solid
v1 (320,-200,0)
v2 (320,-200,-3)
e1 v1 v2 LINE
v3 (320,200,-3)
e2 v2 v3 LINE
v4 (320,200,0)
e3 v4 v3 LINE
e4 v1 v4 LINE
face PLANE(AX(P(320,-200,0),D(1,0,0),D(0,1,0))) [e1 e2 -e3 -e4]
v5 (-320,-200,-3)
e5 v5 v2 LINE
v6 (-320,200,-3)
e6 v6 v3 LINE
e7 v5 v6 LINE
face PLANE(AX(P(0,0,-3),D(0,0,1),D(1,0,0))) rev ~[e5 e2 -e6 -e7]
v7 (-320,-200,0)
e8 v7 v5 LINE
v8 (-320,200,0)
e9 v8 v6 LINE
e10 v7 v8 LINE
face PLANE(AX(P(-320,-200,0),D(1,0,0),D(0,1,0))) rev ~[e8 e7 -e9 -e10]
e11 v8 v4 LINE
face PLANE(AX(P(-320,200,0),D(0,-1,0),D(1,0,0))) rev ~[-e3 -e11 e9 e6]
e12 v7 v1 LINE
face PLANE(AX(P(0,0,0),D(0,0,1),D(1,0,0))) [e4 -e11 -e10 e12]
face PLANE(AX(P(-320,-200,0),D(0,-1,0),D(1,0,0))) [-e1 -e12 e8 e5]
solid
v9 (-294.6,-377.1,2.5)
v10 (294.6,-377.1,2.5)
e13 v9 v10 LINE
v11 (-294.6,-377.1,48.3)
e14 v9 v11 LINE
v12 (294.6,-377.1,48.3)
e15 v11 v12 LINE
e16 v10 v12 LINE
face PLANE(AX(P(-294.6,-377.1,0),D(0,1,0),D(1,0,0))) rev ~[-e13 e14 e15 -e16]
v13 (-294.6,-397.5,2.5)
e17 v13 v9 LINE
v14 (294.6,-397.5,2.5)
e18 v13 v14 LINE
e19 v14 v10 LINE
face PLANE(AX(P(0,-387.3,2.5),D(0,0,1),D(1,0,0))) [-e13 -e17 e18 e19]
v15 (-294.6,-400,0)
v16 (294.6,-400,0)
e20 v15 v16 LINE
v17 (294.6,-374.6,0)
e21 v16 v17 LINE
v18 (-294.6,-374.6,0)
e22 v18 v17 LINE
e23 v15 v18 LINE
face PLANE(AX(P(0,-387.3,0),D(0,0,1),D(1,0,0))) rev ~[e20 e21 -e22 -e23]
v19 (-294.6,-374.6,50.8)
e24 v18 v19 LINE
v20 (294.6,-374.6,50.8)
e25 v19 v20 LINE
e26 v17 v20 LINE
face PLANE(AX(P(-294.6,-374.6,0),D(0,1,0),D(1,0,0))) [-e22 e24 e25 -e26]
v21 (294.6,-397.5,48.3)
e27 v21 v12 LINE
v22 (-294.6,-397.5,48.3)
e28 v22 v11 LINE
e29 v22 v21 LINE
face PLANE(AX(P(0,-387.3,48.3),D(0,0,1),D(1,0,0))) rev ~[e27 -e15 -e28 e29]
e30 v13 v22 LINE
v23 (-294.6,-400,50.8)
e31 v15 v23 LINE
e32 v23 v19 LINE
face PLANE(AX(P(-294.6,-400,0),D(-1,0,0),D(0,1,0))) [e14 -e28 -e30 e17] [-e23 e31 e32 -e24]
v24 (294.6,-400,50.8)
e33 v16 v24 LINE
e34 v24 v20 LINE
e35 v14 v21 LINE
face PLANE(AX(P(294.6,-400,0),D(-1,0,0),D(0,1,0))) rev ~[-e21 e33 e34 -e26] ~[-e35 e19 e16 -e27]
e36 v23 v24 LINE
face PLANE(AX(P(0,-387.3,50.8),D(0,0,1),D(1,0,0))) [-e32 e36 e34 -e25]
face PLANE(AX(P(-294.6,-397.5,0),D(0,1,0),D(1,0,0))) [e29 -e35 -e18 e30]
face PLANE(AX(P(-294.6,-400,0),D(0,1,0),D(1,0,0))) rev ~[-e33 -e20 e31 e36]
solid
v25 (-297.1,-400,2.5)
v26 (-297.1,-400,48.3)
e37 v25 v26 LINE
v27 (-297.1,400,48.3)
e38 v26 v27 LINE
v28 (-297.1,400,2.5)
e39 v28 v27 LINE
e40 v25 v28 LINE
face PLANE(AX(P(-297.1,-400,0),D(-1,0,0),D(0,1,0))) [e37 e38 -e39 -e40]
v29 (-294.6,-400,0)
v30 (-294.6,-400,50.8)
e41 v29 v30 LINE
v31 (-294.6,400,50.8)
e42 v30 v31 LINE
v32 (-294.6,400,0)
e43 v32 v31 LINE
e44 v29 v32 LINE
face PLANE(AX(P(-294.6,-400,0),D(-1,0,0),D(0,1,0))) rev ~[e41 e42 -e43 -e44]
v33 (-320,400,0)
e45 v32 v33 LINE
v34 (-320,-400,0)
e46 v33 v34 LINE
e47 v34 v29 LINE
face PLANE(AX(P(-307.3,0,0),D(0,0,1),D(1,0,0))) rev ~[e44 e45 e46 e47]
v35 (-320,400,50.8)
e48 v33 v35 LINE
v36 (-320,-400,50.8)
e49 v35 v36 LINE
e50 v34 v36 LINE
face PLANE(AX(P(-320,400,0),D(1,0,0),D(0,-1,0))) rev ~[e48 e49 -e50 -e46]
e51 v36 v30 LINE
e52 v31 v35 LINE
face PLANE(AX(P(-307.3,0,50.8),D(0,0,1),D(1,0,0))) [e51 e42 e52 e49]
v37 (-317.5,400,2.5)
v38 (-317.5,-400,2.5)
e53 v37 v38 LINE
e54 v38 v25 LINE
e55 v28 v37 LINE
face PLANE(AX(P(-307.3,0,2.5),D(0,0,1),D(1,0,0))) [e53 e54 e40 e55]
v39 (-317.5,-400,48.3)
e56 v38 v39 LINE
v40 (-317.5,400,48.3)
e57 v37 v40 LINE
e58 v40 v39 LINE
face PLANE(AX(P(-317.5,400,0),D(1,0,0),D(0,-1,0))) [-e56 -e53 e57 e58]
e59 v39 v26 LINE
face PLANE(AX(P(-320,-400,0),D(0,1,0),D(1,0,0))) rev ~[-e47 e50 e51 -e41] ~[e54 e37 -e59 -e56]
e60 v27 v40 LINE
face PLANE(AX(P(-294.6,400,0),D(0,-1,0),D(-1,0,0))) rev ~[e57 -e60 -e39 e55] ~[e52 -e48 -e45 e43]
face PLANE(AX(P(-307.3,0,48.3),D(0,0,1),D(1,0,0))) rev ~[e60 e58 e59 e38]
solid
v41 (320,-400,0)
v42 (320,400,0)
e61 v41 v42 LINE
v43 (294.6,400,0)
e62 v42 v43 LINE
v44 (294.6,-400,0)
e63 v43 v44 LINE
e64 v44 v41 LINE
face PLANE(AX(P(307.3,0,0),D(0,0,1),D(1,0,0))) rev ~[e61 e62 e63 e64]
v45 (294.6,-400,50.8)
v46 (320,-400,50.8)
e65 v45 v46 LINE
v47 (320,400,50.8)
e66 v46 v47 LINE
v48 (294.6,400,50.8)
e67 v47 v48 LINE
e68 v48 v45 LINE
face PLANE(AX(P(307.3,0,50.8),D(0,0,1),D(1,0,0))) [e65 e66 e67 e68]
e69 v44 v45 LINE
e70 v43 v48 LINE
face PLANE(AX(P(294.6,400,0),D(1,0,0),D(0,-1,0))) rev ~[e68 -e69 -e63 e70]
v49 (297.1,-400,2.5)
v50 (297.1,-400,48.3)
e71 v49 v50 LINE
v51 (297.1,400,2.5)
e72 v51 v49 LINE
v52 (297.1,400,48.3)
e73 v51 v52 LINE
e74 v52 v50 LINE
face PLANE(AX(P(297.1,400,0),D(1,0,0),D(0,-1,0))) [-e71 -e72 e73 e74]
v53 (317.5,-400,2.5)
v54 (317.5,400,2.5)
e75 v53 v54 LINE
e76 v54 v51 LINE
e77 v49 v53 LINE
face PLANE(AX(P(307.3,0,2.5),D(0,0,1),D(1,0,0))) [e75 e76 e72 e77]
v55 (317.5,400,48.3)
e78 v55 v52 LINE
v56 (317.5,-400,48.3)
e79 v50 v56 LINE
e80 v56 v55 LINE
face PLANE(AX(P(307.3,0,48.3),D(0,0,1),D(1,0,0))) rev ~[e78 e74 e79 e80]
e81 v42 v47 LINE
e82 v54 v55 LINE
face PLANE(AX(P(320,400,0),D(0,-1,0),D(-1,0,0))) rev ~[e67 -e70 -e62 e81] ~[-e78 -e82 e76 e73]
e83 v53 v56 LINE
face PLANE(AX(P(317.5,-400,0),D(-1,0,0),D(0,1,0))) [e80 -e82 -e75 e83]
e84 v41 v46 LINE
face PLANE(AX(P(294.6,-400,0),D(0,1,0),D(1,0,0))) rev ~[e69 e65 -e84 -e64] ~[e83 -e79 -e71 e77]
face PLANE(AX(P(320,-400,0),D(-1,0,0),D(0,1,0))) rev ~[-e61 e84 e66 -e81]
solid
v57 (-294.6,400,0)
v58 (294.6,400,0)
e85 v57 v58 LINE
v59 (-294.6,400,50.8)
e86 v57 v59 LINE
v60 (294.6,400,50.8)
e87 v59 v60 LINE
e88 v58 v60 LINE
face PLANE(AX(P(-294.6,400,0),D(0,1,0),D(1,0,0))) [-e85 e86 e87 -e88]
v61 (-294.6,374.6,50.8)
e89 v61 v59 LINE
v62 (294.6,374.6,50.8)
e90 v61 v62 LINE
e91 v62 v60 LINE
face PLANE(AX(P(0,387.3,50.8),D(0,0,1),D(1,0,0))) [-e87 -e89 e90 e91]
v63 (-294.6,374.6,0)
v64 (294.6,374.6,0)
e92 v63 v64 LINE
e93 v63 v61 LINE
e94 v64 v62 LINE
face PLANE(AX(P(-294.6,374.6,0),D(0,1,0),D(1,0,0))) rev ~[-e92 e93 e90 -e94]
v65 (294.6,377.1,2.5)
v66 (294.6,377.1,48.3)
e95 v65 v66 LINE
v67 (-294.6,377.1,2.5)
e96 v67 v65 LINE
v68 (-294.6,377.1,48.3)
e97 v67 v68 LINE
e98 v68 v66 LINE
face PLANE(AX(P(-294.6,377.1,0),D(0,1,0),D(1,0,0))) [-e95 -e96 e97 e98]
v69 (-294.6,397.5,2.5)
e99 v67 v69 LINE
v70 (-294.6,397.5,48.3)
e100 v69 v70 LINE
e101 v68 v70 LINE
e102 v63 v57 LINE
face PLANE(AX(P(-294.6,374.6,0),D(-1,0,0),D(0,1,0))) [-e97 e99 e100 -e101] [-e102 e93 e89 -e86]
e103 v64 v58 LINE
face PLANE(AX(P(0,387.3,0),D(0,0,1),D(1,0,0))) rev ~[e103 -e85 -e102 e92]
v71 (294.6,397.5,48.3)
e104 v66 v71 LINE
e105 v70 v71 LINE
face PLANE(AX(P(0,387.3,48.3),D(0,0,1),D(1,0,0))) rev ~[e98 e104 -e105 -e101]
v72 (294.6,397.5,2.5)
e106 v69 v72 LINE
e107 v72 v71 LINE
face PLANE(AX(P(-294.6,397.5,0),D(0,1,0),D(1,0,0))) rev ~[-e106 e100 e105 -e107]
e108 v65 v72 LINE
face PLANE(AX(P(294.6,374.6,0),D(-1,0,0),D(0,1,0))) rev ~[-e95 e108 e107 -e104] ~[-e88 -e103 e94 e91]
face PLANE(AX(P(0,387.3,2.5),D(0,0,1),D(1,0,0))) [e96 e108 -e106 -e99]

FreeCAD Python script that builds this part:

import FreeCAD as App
import Part
import Sketcher
from FreeCAD import Vector
Q = App.Units.Quantity


def faces_at(feature, points):
    """Names of the faces that lie closest to the given points."""
    faces = feature.Shape.Faces
    near = lambda p: min(range(len(faces)), key=lambda i: faces[i].distToShape(Part.Vertex(*p))[0])
    return sorted({f"Face{near(p) + 1}" for p in points})


def add_polygon(sketch, points):
    """Adds a closed chain of lines whose ends are joined by coincident constraints."""
    first, n = sketch.GeometryCount, len(points)
    for a, b in zip(points, points[1:] + points[:1]):
        sketch.addGeometry(Part.LineSegment(App.Vector(*a, 0), App.Vector(*b, 0)), False)
    for i in range(n):
        sketch.addConstraint(Sketcher.Constraint("Coincident", first + i, 2, first + (i + 1) % n, 1))

doc = App.newDocument("Part")
body = doc.addObject("PartDesign::Body", "Body")

# Sketch on XY plane
sketch1 = doc.addObject("Sketcher::SketchObject", "Sketch")
body.addObject(sketch1)
sketch1.AttachmentSupport = (doc.XY_Plane, [""])
sketch1.MapMode = "FlatFace"
add_polygon(sketch1, [(-295, 400), (-320, 400), (-320, -400), (-295, -400)])  # lines 0-3
sketch1.addConstraint([
    Sketcher.Constraint("Horizontal", 0),
    Sketcher.Constraint("Vertical", 1),
    Sketcher.Constraint("Horizontal", 2),
    Sketcher.Constraint("Vertical", 3),
    Sketcher.Constraint("DistanceY", 1, 2, 1, 1, Q("800 mm")),
    Sketcher.Constraint("DistanceX", 0, 2, 0, 1, Q("25.4 mm")),
    Sketcher.Constraint("DistanceX", 0, 2, -1, 1, Q("320 mm")),
    Sketcher.Constraint("DistanceY", -1, 1, 0, 2, Q("400 mm")),
])
pad1 = doc.addObject("PartDesign::Pad", "Pad")
body.addObject(pad1)
pad1.Profile = sketch1
pad1.Length = 50.8
doc.recompute()

thickness = doc.addObject("PartDesign::Thickness", "Thickness")
body.addObject(thickness)
thickness.Base = (pad1, faces_at(pad1, [(-307.3, -400, 25.4), (-307.3, 400, 25.4)]))
thickness.Value = 2.5
thickness.Reversed = True
thickness.Join = "Arc"
body2 = doc.addObject("PartDesign::Body", "Body001")

# Sketch on XY plane
sketch2 = doc.addObject("Sketcher::SketchObject", "Sketch001")
body2.addObject(sketch2)
sketch2.AttachmentSupport = (doc.getObject("XY_Plane001"), [""])
sketch2.MapMode = "FlatFace"
add_polygon(sketch2, [(-295, 400), (-295, 375), (295, 375), (295, 400)])  # lines 0-3
sketch2.addConstraint([
    Sketcher.Constraint("Vertical", 0),
    Sketcher.Constraint("Horizontal", 1),
    Sketcher.Constraint("Vertical", 2),
    Sketcher.Constraint("Horizontal", 3),
    Sketcher.Constraint("DistanceX", 1, 1, 1, 2, Q("589.2 mm")),
    Sketcher.Constraint("DistanceY", 0, 2, 0, 1, Q("25.4 mm")),
    Sketcher.Constraint("DistanceY", -1, 1, 2, 2, Q("400 mm")),
    Sketcher.Constraint("DistanceX", 0, 2, -1, 1, Q("294.6 mm")),
])
pad2 = doc.addObject("PartDesign::Pad", "Pad001")
body2.addObject(pad2)
pad2.Profile = sketch2
pad2.Length = 50.8
doc.recompute()

thickness2 = doc.addObject("PartDesign::Thickness", "Thickness001")
body2.addObject(thickness2)
thickness2.Base = (pad2, faces_at(pad2, [(294.6, 387.3, 25.4), (-294.6, 387.3, 25.4)]))
thickness2.Value = 2.5
thickness2.Reversed = True
thickness2.Join = "Arc"
body3 = doc.addObject("PartDesign::Body", "Body002")

# Sketch on XY plane
sketch3 = doc.addObject("Sketcher::SketchObject", "Sketch002")
body3.addObject(sketch3)
sketch3.AttachmentSupport = (doc.getObject("XY_Plane002"), [""])
sketch3.MapMode = "FlatFace"
add_polygon(sketch3, [(320, 400), (295, 400), (295, -400), (320, -400)])  # lines 0-3
sketch3.addConstraint([
    Sketcher.Constraint("Horizontal", 0),
    Sketcher.Constraint("Vertical", 1),
    Sketcher.Constraint("Horizontal", 2),
    Sketcher.Constraint("Vertical", 3),
    Sketcher.Constraint("DistanceY", 1, 2, 1, 1, Q("800 mm")),
    Sketcher.Constraint("DistanceX", 0, 2, 0, 1, Q("25.4 mm")),
    Sketcher.Constraint("DistanceY", -1, 1, 0, 2, Q("400 mm")),
    Sketcher.Constraint("DistanceX", -1, 1, 2, 2, Q("320 mm")),
])
pad3 = doc.addObject("PartDesign::Pad", "Pad002")
body3.addObject(pad3)
pad3.Profile = sketch3
pad3.Length = 50.8
doc.recompute()

thickness3 = doc.addObject("PartDesign::Thickness", "Thickness002")
body3.addObject(thickness3)
thickness3.Base = (pad3, faces_at(pad3, [(307.3, -400, 25.4), (307.3, 400, 25.4)]))
thickness3.Value = 2.5
thickness3.Reversed = True
thickness3.Join = "Arc"
body4 = doc.addObject("PartDesign::Body", "Body003")

# Sketch on XY plane
sketch4 = doc.addObject("Sketcher::SketchObject", "Sketch003")
body4.addObject(sketch4)
sketch4.AttachmentSupport = (doc.getObject("XY_Plane003"), [""])
sketch4.MapMode = "FlatFace"
add_polygon(sketch4, [(-295, -375), (-295, -400), (295, -400), (295, -375)])  # lines 0-3
sketch4.addConstraint([
    Sketcher.Constraint("Vertical", 0),
    Sketcher.Constraint("Horizontal", 1),
    Sketcher.Constraint("Vertical", 2),
    Sketcher.Constraint("Horizontal", 3),
    Sketcher.Constraint("DistanceX", 1, 1, 1, 2, Q("589.2 mm")),
    Sketcher.Constraint("DistanceY", 0, 2, 0, 1, Q("25.4 mm")),
    Sketcher.Constraint("DistanceY", 0, 2, -1, 1, Q("400 mm")),
    Sketcher.Constraint("DistanceX", 0, 2, -1, 1, Q("294.6 mm")),
])
pad4 = doc.addObject("PartDesign::Pad", "Pad003")
body4.addObject(pad4)
pad4.Profile = sketch4
pad4.Length = 50.8
doc.recompute()

thickness4 = doc.addObject("PartDesign::Thickness", "Thickness003")
body4.addObject(thickness4)
thickness4.Base = (pad4, faces_at(pad4, [(-294.6, -387.3, 25.4), (294.6, -387.3, 25.4)]))
thickness4.Value = 2.5
thickness4.Reversed = True
thickness4.Join = "Arc"
body5 = doc.addObject("PartDesign::Body", "Body004")

# Sketch on XY plane
sketch5 = doc.addObject("Sketcher::SketchObject", "Sketch004")
body5.addObject(sketch5)
sketch5.AttachmentSupport = (doc.getObject("XY_Plane004"), [""])
sketch5.MapMode = "FlatFace"
add_polygon(sketch5, [(-320, 200), (-320, -200), (320, -200), (320, 200)])  # lines 0-3
sketch5.addConstraint([
    Sketcher.Constraint("Vertical", 0),
    Sketcher.Constraint("Horizontal", 1),
    Sketcher.Constraint("Vertical", 2),
    Sketcher.Constraint("Horizontal", 3),
    Sketcher.Constraint("Symmetric", 0, 2, 2, 2, -1, 1),
    Sketcher.Constraint("DistanceX", 1, 1, 1, 2, Q("640 mm")),
    Sketcher.Constraint("DistanceY", 0, 2, 0, 1, Q("400 mm")),
])
pad5 = doc.addObject("PartDesign::Pad", "Pad004")
body5.addObject(pad5)
pad5.Profile = sketch5
pad5.Length = 3
pad5.Reversed = True

doc.recompute()
